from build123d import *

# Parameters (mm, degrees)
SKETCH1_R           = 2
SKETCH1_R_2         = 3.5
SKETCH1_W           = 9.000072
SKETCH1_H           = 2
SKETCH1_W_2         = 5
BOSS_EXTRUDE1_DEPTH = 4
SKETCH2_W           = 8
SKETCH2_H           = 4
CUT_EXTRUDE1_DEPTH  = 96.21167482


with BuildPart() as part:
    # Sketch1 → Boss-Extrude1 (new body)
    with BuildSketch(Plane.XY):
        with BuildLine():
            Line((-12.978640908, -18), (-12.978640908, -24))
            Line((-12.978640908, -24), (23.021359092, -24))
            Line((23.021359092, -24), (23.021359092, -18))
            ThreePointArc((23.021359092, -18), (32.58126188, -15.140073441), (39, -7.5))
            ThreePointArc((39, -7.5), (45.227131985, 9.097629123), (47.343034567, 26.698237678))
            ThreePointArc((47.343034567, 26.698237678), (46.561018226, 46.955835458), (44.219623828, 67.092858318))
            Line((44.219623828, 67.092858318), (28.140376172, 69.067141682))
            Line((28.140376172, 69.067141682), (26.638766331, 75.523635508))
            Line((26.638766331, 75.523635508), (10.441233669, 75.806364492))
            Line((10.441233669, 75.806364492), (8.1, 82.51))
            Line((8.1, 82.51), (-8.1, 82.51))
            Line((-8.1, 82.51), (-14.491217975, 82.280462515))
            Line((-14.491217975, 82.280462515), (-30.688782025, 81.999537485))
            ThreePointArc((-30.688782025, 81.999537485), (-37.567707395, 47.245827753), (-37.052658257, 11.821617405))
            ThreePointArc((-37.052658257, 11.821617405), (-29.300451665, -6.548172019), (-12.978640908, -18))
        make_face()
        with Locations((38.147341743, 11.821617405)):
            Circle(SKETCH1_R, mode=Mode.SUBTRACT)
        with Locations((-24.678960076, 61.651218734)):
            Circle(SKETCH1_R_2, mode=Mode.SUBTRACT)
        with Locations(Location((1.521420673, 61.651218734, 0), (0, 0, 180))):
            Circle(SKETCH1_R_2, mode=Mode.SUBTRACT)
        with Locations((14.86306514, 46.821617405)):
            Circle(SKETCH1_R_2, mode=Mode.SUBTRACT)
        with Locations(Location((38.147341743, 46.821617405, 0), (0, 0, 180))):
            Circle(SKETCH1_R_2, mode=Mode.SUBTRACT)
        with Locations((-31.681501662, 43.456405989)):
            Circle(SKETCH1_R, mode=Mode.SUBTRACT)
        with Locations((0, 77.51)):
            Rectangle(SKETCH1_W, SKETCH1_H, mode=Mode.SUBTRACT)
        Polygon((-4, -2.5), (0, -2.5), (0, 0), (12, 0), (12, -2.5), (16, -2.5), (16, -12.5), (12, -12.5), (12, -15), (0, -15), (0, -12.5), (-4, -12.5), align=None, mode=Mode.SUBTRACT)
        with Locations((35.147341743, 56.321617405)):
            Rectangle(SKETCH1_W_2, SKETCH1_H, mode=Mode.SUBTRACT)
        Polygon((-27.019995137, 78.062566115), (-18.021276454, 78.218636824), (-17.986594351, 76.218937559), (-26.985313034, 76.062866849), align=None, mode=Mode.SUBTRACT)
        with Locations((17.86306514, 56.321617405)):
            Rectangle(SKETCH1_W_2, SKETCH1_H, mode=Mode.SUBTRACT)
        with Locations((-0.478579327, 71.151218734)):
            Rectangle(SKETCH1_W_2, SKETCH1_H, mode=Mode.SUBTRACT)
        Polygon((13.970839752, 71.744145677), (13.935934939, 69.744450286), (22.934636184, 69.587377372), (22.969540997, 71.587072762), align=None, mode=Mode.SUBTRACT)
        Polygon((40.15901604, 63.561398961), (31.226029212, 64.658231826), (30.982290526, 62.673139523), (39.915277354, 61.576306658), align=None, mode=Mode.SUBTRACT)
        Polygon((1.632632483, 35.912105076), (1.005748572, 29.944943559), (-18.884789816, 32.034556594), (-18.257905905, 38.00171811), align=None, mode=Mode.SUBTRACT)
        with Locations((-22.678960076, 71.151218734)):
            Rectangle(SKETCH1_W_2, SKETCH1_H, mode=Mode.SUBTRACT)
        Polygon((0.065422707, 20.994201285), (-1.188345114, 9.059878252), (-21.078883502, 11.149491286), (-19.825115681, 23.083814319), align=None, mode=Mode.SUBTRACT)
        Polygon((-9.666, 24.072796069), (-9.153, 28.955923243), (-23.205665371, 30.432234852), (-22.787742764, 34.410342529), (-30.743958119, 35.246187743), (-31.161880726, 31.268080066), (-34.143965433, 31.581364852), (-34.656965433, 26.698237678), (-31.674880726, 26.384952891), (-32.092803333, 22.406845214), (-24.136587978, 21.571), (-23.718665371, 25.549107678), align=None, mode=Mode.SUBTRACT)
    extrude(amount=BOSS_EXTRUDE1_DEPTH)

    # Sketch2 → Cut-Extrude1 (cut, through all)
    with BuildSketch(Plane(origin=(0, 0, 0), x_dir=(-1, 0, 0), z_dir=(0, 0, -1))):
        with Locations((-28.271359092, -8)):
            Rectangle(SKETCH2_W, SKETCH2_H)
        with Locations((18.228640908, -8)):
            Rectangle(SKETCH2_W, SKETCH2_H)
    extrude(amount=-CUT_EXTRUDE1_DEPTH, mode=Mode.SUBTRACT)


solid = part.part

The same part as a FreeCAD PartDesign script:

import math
import FreeCAD as App
import Part
import Sketcher
Q = App.Units.Quantity


def add_polygon(sketch, points):
    """Adds a closed chain of lines whose ends are joined by coincident constraints."""
    first, n = sketch.GeometryCount, len(points)
    for a, b in zip(points, points[1:] + points[:1]):
        sketch.addGeometry(Part.LineSegment(App.Vector(*a, 0), App.Vector(*b, 0)), False)
    for i in range(n):
        sketch.addConstraint(Sketcher.Constraint("Coincident", first + i, 2, first + (i + 1) % n, 1))

doc = App.newDocument("Part")
body = doc.addObject("PartDesign::Body", "Body")

# Sketch on XY plane
sketch1 = body.newObject("Sketcher::SketchObject", "Sketch")
sketch1.AttachmentSupport = (doc.getObject("XY_Plane"), [""])
sketch1.MapMode = "FlatFace"
sketch1.addGeometry(Part.LineSegment(App.Vector(-13, -18, 0), App.Vector(-13, -24, 0)), False)  # 0
sketch1.addGeometry(Part.LineSegment(App.Vector(-13, -24, 0), App.Vector(23, -24, 0)), False)  # 1
sketch1.addGeometry(Part.LineSegment(App.Vector(23, -24, 0), App.Vector(23, -18, 0)), False)  # 2
sketch1.addGeometry(Part.ArcOfCircle(Part.Circle(App.Vector(23, -0.6, 0), App.Vector(0, 0, 1), 17.4), math.radians(-90), math.radians(-23)), False)  # 3
sketch1.addGeometry(Part.ArcOfCircle(Part.Circle(App.Vector(-26.9, 26.7, 0), App.Vector(0, 0, 1), 74.3), math.radians(-27), math.radians(0)), False)  # 4
sketch1.addGeometry(Part.ArcOfCircle(Part.Circle(App.Vector(-215.4, 26.7, 0), App.Vector(0, 0, 1), 262.8), math.radians(0), math.radians(8.84)), False)  # 5
sketch1.addGeometry(Part.LineSegment(App.Vector(44.2, 67.1, 0), App.Vector(28.1, 69.1, 0)), False)  # 6
sketch1.addGeometry(Part.LineSegment(App.Vector(28.1, 69.1, 0), App.Vector(26.6, 75.5, 0)), False)  # 7
sketch1.addGeometry(Part.LineSegment(App.Vector(26.6, 75.5, 0), App.Vector(10.4, 75.8, 0)), False)  # 8
sketch1.addGeometry(Part.LineSegment(App.Vector(10.4, 75.8, 0), App.Vector(8.1, 82.5, 0)), False)  # 9
sketch1.addGeometry(Part.LineSegment(App.Vector(8.1, 82.5, 0), App.Vector(-8.1, 82.5, 0)), False)  # 10
sketch1.addGeometry(Part.LineSegment(App.Vector(-8.1, 82.5, 0), App.Vector(-14.5, 82.3, 0)), False)  # 11
sketch1.addGeometry(Part.LineSegment(App.Vector(-14.5, 82.3, 0), App.Vector(-30.7, 82, 0)), False)  # 12
sketch1.addGeometry(Part.ArcOfCircle(Part.Circle(App.Vector(130.8, 32, 0), App.Vector(0, 0, 1), 169.1), math.radians(163), math.radians(187)), False)  # 13
sketch1.addGeometry(Part.ArcOfCircle(Part.Circle(App.Vector(-1.2, 16.1, 0), App.Vector(0, 0, 1), 36.1), math.radians(-173), math.radians(-109)), False)  # 14
add_polygon(sketch1, [(-9.2, 29), (-9.7, 24.1), (-23.7, 25.5), (-24.1, 21.6), (-32.1, 22.4), (-31.7, 26.4), (-34.7, 26.7), (-34.1, 31.6), (-31.2, 31.3), (-30.7, 35.2), (-22.8, 34.4), (-23.2, 30.4)])  # lines 15-26
add_polygon(sketch1, [(-19.8, 23.1), (0.1, 21), (-1.2, 9.1), (-21.1, 11.1)])  # lines 27-30
add_polygon(sketch1, [(-4, -12.5), (-4, -2.5), (0, -2.5), (0, 0), (12, 0), (12, -2.5), (16, -2.5), (16, -12.5), (12, -12.5), (12, -15), (0, -15), (0, -12.5)])  # lines 31-42
sketch1.addGeometry(Part.Circle(App.Vector(38.1, 11.8, 0), App.Vector(0, 0, 1), 2), False)  # 43
sketch1.addGeometry(Part.Circle(App.Vector(-31.7, 43.5, 0), App.Vector(0, 0, 1), 2), False)  # 44
add_polygon(sketch1, [(-18.3, 38), (1.6, 35.9), (1, 29.9), (-18.9, 32)])  # lines 45-48
sketch1.addGeometry(Part.Circle(App.Vector(-24.7, 61.7, 0), App.Vector(0, 0, 1), 3.5), False)  # 49
add_polygon(sketch1, [(-20.2, 70.2), (-25.2, 70.2), (-25.2, 72.2), (-20.2, 72.2)])  # lines 50-53
add_polygon(sketch1, [(-27, 76.1), (-27, 78.1), (-18, 78.2), (-18, 76.2)])  # lines 54-57
sketch1.addGeometry(Part.Circle(App.Vector(1.5, 61.7, 0), App.Vector(0, 0, 1), 3.5), False)  # 58
add_polygon(sketch1, [(2, 70.2), (-3, 70.2), (-3, 72.2), (2, 72.2)])  # lines 59-62
add_polygon(sketch1, [(4.5, 76.5), (-4.5, 76.5), (-4.5, 78.5), (4.5, 78.5)])  # lines 63-66
sketch1.addGeometry(Part.Circle(App.Vector(14.9, 46.8, 0), App.Vector(0, 0, 1), 3.5), False)  # 67
sketch1.addGeometry(Part.Circle(App.Vector(38.1, 46.8, 0), App.Vector(0, 0, 1), 3.5), False)  # 68
add_polygon(sketch1, [(20.4, 55.3), (15.4, 55.3), (15.4, 57.3), (20.4, 57.3)])  # lines 69-72
add_polygon(sketch1, [(13.9, 69.7), (14, 71.7), (23, 71.6), (22.9, 69.6)])  # lines 73-76
add_polygon(sketch1, [(37.6, 55.3), (32.6, 55.3), (32.6, 57.3), (37.6, 57.3)])  # lines 77-80
add_polygon(sketch1, [(31.2, 64.7), (40.2, 63.6), (39.9, 61.6), (31, 62.7)])  # lines 81-84
sketch1.addConstraint(Sketcher.Constraint("Coincident", 0, 2, 1, 1))
sketch1.addConstraint(Sketcher.Constraint("Coincident", 1, 2, 2, 1))
sketch1.addConstraint(Sketcher.Constraint("Coincident", 2, 2, 3, 1))
sketch1.addConstraint(Sketcher.Constraint("Coincident", 3, 2, 4, 1))
sketch1.addConstraint(Sketcher.Constraint("Tangent", 4, 2, 5, 1))
sketch1.addConstraint(Sketcher.Constraint("Coincident", 5, 2, 6, 1))
sketch1.addConstraint(Sketcher.Constraint("Coincident", 6, 2, 7, 1))
sketch1.addConstraint(Sketcher.Constraint("Coincident", 7, 2, 8, 1))
sketch1.addConstraint(Sketcher.Constraint("Coincident", 8, 2, 9, 1))
sketch1.addConstraint(Sketcher.Constraint("Coincident", 9, 2, 10, 1))
sketch1.addConstraint(Sketcher.Constraint("Coincident", 10, 2, 11, 1))
sketch1.addConstraint(Sketcher.Constraint("Coincident", 11, 2, 12, 1))
sketch1.addConstraint(Sketcher.Constraint("Coincident", 12, 2, 13, 1))
sketch1.addConstraint(Sketcher.Constraint("Tangent", 13, 2, 14, 1))
sketch1.addConstraint(Sketcher.Constraint("Coincident", 14, 2, 0, 1))
sketch1.addConstraint(Sketcher.Constraint("Vertical", 0))
sketch1.addConstraint(Sketcher.Constraint("Horizontal", 1))
sketch1.addConstraint(Sketcher.Constraint("Vertical", 2))
sketch1.addConstraint(Sketcher.Constraint("Horizontal", 10))
sketch1.addConstraint(Sketcher.Constraint("Vertical", 31))
sketch1.addConstraint(Sketcher.Constraint("Horizontal", 32))
sketch1.addConstraint(Sketcher.Constraint("Vertical", 33))
sketch1.addConstraint(Sketcher.Constraint("Horizontal", 34))
sketch1.addConstraint(Sketcher.Constraint("Vertical", 35))
sketch1.addConstraint(Sketcher.Constraint("Horizontal", 36))
sketch1.addConstraint(Sketcher.Constraint("Vertical", 37))
sketch1.addConstraint(Sketcher.Constraint("Horizontal", 38))
sketch1.addConstraint(Sketcher.Constraint("Vertical", 39))
sketch1.addConstraint(Sketcher.Constraint("Horizontal", 40))
sketch1.addConstraint(Sketcher.Constraint("Vertical", 41))
sketch1.addConstraint(Sketcher.Constraint("Horizontal", 42))
sketch1.addConstraint(Sketcher.Constraint("Horizontal", 50))
sketch1.addConstraint(Sketcher.Constraint("Vertical", 51))
sketch1.addConstraint(Sketcher.Constraint("Horizontal", 52))
sketch1.addConstraint(Sketcher.Constraint("Vertical", 53))
sketch1.addConstraint(Sketcher.Constraint("Horizontal", 59))
sketch1.addConstraint(Sketcher.Constraint("Vertical", 60))
sketch1.addConstraint(Sketcher.Constraint("Horizontal", 61))
sketch1.addConstraint(Sketcher.Constraint("Vertical", 62))
sketch1.addConstraint(Sketcher.Constraint("Horizontal", 63))
sketch1.addConstraint(Sketcher.Constraint("Vertical", 64))
sketch1.addConstraint(Sketcher.Constraint("Horizontal", 65))
sketch1.addConstraint(Sketcher.Constraint("Vertical", 66))
sketch1.addConstraint(Sketcher.Constraint("Horizontal", 69))
sketch1.addConstraint(Sketcher.Constraint("Vertical", 70))
sketch1.addConstraint(Sketcher.Constraint("Horizontal", 71))
sketch1.addConstraint(Sketcher.Constraint("Vertical", 72))
sketch1.addConstraint(Sketcher.Constraint("Horizontal", 77))
sketch1.addConstraint(Sketcher.Constraint("Vertical", 78))
sketch1.addConstraint(Sketcher.Constraint("Horizontal", 79))
sketch1.addConstraint(Sketcher.Constraint("Vertical", 80))
sketch1.addConstraint(Sketcher.Constraint("Coincident", 33, 2, -1, 1))
sketch1.addConstraint(Sketcher.Constraint("Equal", 43, 44))
sketch1.addConstraint(Sketcher.Constraint("Equal", 49, 58))
sketch1.addConstraint(Sketcher.Constraint("Equal", 58, 67))
sketch1.addConstraint(Sketcher.Constraint("Equal", 67, 68))
sketch1.addConstraint(Sketcher.Constraint("PointOnObject", 40, 2, -2))
sketch1.addConstraint(Sketcher.Constraint("Perpendicular", 15, 16))
sketch1.addConstraint(Sketcher.Constraint("Perpendicular", 16, 17))
sketch1.addConstraint(Sketcher.Constraint("Perpendicular", 17, 18))
sketch1.addConstraint(Sketcher.Constraint("Perpendicular", 18, 19))
sketch1.addConstraint(Sketcher.Constraint("Perpendicular", 19, 20))
sketch1.addConstraint(Sketcher.Constraint("Perpendicular", 20, 21))
sketch1.addConstraint(Sketcher.Constraint("Perpendicular", 21, 22))
sketch1.addConstraint(Sketcher.Constraint("Perpendicular", 22, 23))
sketch1.addConstraint(Sketcher.Constraint("Perpendicular", 23, 24))
sketch1.addConstraint(Sketcher.Constraint("Perpendicular", 24, 25))
sketch1.addConstraint(Sketcher.Constraint("Perpendicular", 25, 26))
sketch1.addConstraint(Sketcher.Constraint("Parallel", 26, 27))
sketch1.addConstraint(Sketcher.Constraint("Perpendicular", 27, 28))
sketch1.addConstraint(Sketcher.Constraint("Perpendicular", 28, 29))
sketch1.addConstraint(Sketcher.Constraint("Perpendicular", 29, 30))
sketch1.addConstraint(Sketcher.Constraint("Perpendicular", 30, 45))
sketch1.addConstraint(Sketcher.Constraint("Perpendicular", 45, 46))
sketch1.addConstraint(Sketcher.Constraint("Perpendicular", 46, 47))
sketch1.addConstraint(Sketcher.Constraint("Perpendicular", 47, 48))
sketch1.addConstraint(Sketcher.Constraint("Perpendicular", 12, 54))
sketch1.addConstraint(Sketcher.Constraint("Perpendicular", 54, 55))
sketch1.addConstraint(Sketcher.Constraint("Perpendicular", 55, 56))
sketch1.addConstraint(Sketcher.Constraint("Perpendicular", 56, 57))
sketch1.addConstraint(Sketcher.Constraint("Perpendicular", 8, 73))
sketch1.addConstraint(Sketcher.Constraint("Perpendicular", 73, 74))
sketch1.addConstraint(Sketcher.Constraint("Perpendicular", 74, 75))
sketch1.addConstraint(Sketcher.Constraint("Perpendicular", 75, 76))
sketch1.addConstraint(Sketcher.Constraint("Parallel", 6, 81))
sketch1.addConstraint(Sketcher.Constraint("Perpendicular", 81, 82))
sketch1.addConstraint(Sketcher.Constraint("Perpendicular", 82, 83))
sketch1.addConstraint(Sketcher.Constraint("Perpendicular", 83, 84))
sketch1.addConstraint(Sketcher.Constraint("Horizontal", 4, 3, 5, 3))
sketch1.addConstraint(Sketcher.Constraint("Horizontal", 49, 3, 58, 3))
sketch1.addConstraint(Sketcher.Constraint("Horizontal", 67, 3, 68, 3))
sketch1.addConstraint(Sketcher.Constraint("Horizontal", 43, 3, 13, 2))
sketch1.addConstraint(Sketcher.Constraint("Horizontal", 2, 2, 14, 2))
sketch1.addConstraint(Sketcher.Constraint("Horizontal", 4, 2, 20, 2))
sketch1.addConstraint(Sketcher.Constraint("Horizontal", 32, 2, 35, 2))
sketch1.addConstraint(Sketcher.Constraint("Horizontal", 38, 2, 41, 2))
sketch1.addConstraint(Sketcher.Constraint("Horizontal", 53, 2, 59, 2))
sketch1.addConstraint(Sketcher.Constraint("Horizontal", 52, 2, 60, 2))
sketch1.addConstraint(Sketcher.Constraint("Horizontal", 72, 2, 77, 2))
sketch1.addConstraint(Sketcher.Constraint("Horizontal", 71, 2, 78, 2))
sketch1.addConstraint(Sketcher.Constraint("Vertical", 43, 3, 68, 3))
sketch1.addConstraint(Sketcher.Constraint("Vertical", 3, 3, 1, 2))
sketch1.addConstraint(Sketcher.Constraint("Vertical", 35, 2, 38, 2))
sketch1.addConstraint(Sketcher.Constraint("Equal", 32, 36))
sketch1.addConstraint(Sketcher.Constraint("Equal", 52, 59))
sketch1.addConstraint(Sketcher.Constraint("Equal", 61, 69))
sketch1.addConstraint(Sketcher.Constraint("Equal", 71, 77))
sketch1.addConstraint(Sketcher.Constraint("Equal", 35, 39))
sketch1.addConstraint(Sketcher.Constraint("Equal", 62, 64))
sketch1.addConstraint(Sketcher.Constraint("Equal", 66, 70))
sketch1.addConstraint(Sketcher.Constraint("Equal", 6, 8))
sketch1.addConstraint(Sketcher.Constraint("Equal", 8, 12))
sketch1.addConstraint(Sketcher.Constraint("Equal", 17, 19))
sketch1.addConstraint(Sketcher.Constraint("Equal", 15, 21))
sketch1.addConstraint(Sketcher.Constraint("Equal", 20, 22))
sketch1.addConstraint(Sketcher.Constraint("Equal", 19, 23))
sketch1.addConstraint(Sketcher.Constraint("Equal", 18, 24))
sketch1.addConstraint(Sketcher.Constraint("Equal", 29, 45))
sketch1.addConstraint(Sketcher.Constraint("Equal", 56, 73))
sketch1.addConstraint(Sketcher.Constraint("Equal", 57, 74))
sketch1.addConstraint(Sketcher.Constraint("Equal", 76, 81))
sketch1.addConstraint(Sketcher.Constraint("Equal", 75, 82))
sketch1.addConstraint(Sketcher.Constraint("Diameter", 43, Q("4 mm")))
sketch1.addConstraint(Sketcher.Constraint("Diameter", 49, Q("7 mm")))
sketch1.addConstraint(Sketcher.Constraint("DistanceX", 1, 1, 1, 2, Q("36 mm")))
sketch1.addConstraint(Sketcher.Constraint("DistanceX", 32, 1, 32, 2, Q("4 mm")))
sketch1.addConstraint(Sketcher.Constraint("DistanceX", 34, 1, 34, 2, Q("12 mm")))
sketch1.addConstraint(Sketcher.Constraint("DistanceX", 50, 2, 50, 1, Q("5 mm")))
sketch1.addConstraint(Sketcher.Constraint("DistanceY", 0, 2, 0, 1, Q("6 mm")))
sketch1.addConstraint(Sketcher.Constraint("DistanceY", 31, 1, 31, 2, Q("10 mm")))
sketch1.addConstraint(Sketcher.Constraint("DistanceY", 51, 1, 51, 2, Q("2 mm")))
sketch1.addConstraint(Sketcher.Constraint("Angle", 6, Q("173 deg")))
sketch1.addConstraint(Sketcher.Constraint("Angle", 8, Q("179 deg")))
sketch1.addConstraint(Sketcher.Constraint("Distance", 17, Q("4 mm")))
sketch1.addConstraint(Sketcher.Constraint("Distance", 18, Q("8 mm")))
sketch1.addConstraint(Sketcher.Constraint("Distance", 27, Q("20 mm")))
sketch1.addConstraint(Sketcher.Constraint("Distance", 28, Q("12 mm")))
sketch1.addConstraint(Sketcher.Constraint("Distance", 46, Q("6 mm")))
sketch1.addConstraint(Sketcher.Constraint("Distance", 54, Q("2 mm")))
sketch1.addConstraint(Sketcher.Constraint("DistanceX", 10, 2, 10, 1, Q("16.2 mm")))
sketch1.addConstraint(Sketcher.Constraint("DistanceY", 33, 1, 33, 2, Q("2.5 mm")))
sketch1.addConstraint(Sketcher.Constraint("DistanceY", 0, 2, -1, 1, Q("24 mm")))
sketch1.addConstraint(Sketcher.Constraint("DistanceX", -1, 1, 3, 2, Q("39 mm")))
sketch1.addConstraint(Sketcher.Constraint("Distance", 6, Q("16.2 mm")))
sketch1.addConstraint(Sketcher.Constraint("DistanceY", 3, 2, -1, 1, Q("7.5 mm")))
sketch1.addConstraint(Sketcher.Constraint("DistanceX", -1, 1, 9, 2, Q("8.1 mm")))
sketch1.addConstraint(Sketcher.Constraint("Distance", 15, Q("4.91 mm")))
sketch1.addConstraint(Sketcher.Constraint("Distance", 16, Q("14.13 mm")))
sketch1.addConstraint(Sketcher.Constraint("DistanceY", -1, 1, 9, 2, Q("82.51 mm")))
sketch1.addConstraint(Sketcher.Constraint("DistanceY", -1, 1, 63, 2, Q("76.51 mm")))
sketch1.addConstraint(Sketcher.Constraint("Radius", 3, Q("17.407951 mm")))
sketch1.addConstraint(Sketcher.Constraint("Radius", 4, Q("74.26109 mm")))
sketch1.addConstraint(Sketcher.Constraint("Radius", 13, Q("169.05805 mm")))
sketch1.addConstraint(Sketcher.Constraint("DistanceX", 15, 2, -1, 1, Q("9.666 mm")))
sketch1.addConstraint(Sketcher.Constraint("DistanceY", -1, 1, 17, 2, Q("21.571 mm")))
sketch1.addConstraint(Sketcher.Constraint("DistanceX", 26, 2, -1, 1, Q("9.153 mm")))
sketch1.addConstraint(Sketcher.Constraint("Radius", 5, Q("262.770607 mm")))
sketch1.addConstraint(Sketcher.Constraint("Radius", 14, Q("36.096364 mm")))
sketch1.addConstraint(Sketcher.Constraint("DistanceX", -1, 1, 13, 3, Q("130.799499 mm")))
sketch1.addConstraint(Sketcher.Constraint("DistanceX", 44, 3, -1, 1, Q("31.681502 mm")))
sketch1.addConstraint(Sketcher.Constraint("DistanceY", -1, 1, 27, 2, Q("20.994201 mm")))
sketch1.addConstraint(Sketcher.Constraint("DistanceY", -1, 1, 81, 2, Q("63.561399 mm")))
sketch1.addConstraint(Sketcher.Constraint("Distance", 7, Q("6.628812 mm")))
sketch1.addConstraint(Sketcher.Constraint("Distance", 9, Q("7.100712 mm")))
sketch1.addConstraint(Sketcher.Constraint("Distance", 11, Q("6.395339 mm")))
sketch1.addConstraint(Sketcher.Constraint("Distance", 55, Q("9.000072 mm")))
sketch1.addConstraint(Sketcher.Constraint("DistanceX", 63, 2, 63, 1, Q("9.000072 mm")))
sketch1.addConstraint(Sketcher.Constraint("DistanceX", 14, 3, -1, 1, Q("1.21377 mm")))
sketch1.addConstraint(Sketcher.Constraint("DistanceX", -1, 1, 43, 3, Q("38.147342 mm")))
sketch1.addConstraint(Sketcher.Constraint("DistanceX", 49, 3, -1, 1, Q("24.67896 mm")))
sketch1.addConstraint(Sketcher.Constraint("DistanceY", -1, 1, 49, 3, Q("61.651219 mm")))
sketch1.addConstraint(Sketcher.Constraint("DistanceX", -1, 1, 58, 3, Q("1.521421 mm")))
sketch1.addConstraint(Sketcher.Constraint("DistanceY", -1, 1, 6, 2, Q("69.067142 mm")))
sketch1.addConstraint(Sketcher.Constraint("DistanceX", -1, 1, 46, 2, Q("1.005749 mm")))
sketch1.addConstraint(Sketcher.Constraint("DistanceY", -1, 1, 48, 2, Q("38.001718 mm")))
sketch1.addConstraint(Sketcher.Constraint("DistanceX", 50, 2, -1, 1, Q("25.17896 mm")))
sketch1.addConstraint(Sketcher.Constraint("DistanceY", -1, 1, 50, 2, Q("70.151219 mm")))
sketch1.addConstraint(Sketcher.Constraint("DistanceX", 59, 2, -1, 1, Q("2.978579 mm")))
sketch1.addConstraint(Sketcher.Constraint("DistanceX", -1, 1, 73, 2, Q("13.97084 mm")))
sketch1.addConstraint(Sketcher.Constraint("DistanceY", -1, 1, 76, 2, Q("69.74445 mm")))
sketch1.addConstraint(Sketcher.Constraint("DistanceX", -1, 1, 77, 2, Q("32.647342 mm")))
sketch1.addConstraint(Sketcher.Constraint("DistanceX", -1, 1, 83, 2, Q("30.982291 mm")))
sketch1.addConstraint(Sketcher.Constraint("Distance", 20, Q("2.998496 mm")))
sketch1.addConstraint(Sketcher.Constraint("DistanceY", -1, 1, 44, 3, Q("43.456406 mm")))
sketch1.addConstraint(Sketcher.Constraint("DistanceX", -1, 1, 67, 3, Q("14.863065 mm")))
sketch1.addConstraint(Sketcher.Constraint("DistanceY", -1, 1, 67, 3, Q("46.821617 mm")))
sketch1.addConstraint(Sketcher.Constraint("DistanceX", 11, 2, -1, 1, Q("14.491218 mm")))
sketch1.addConstraint(Sketcher.Constraint("DistanceX", -1, 1, 27, 2, Q("0.065423 mm")))
sketch1.addConstraint(Sketcher.Constraint("DistanceX", 54, 2, -1, 1, Q("27.019995 mm")))
sketch1.addConstraint(Sketcher.Constraint("DistanceY", -1, 1, 54, 2, Q("78.062566 mm")))
sketch1.addConstraint(Sketcher.Constraint("DistanceX", 63, 2, -1, 1, Q("4.500036 mm")))
sketch1.addConstraint(Sketcher.Constraint("DistanceX", -1, 1, 69, 2, Q("15.363065 mm")))
sketch1.addConstraint(Sketcher.Constraint("DistanceY", -1, 1, 69, 2, Q("55.321617 mm")))
pad1 = body.newObject("PartDesign::Pad", "Pad")
pad1.Profile = sketch1
pad1.Length = 4

# Sketch on XY plane
sketch2 = body.newObject("Sketcher::SketchObject", "Sketch001")
sketch2.AttachmentSupport = (doc.getObject("XY_Plane"), [""])
sketch2.MapMode = "FlatFace"
add_polygon(sketch2, [(32.3, -6), (32.3, -10), (24.3, -10), (24.3, -6)])  # lines 0-3
add_polygon(sketch2, [(-14.2, -6), (-14.2, -10), (-22.2, -10), (-22.2, -6)])  # lines 4-7
sketch2.addConstraint(Sketcher.Constraint("Vertical", 0))
sketch2.addConstraint(Sketcher.Constraint("Horizontal", 1))
sketch2.addConstraint(Sketcher.Constraint("Vertical", 2))
sketch2.addConstraint(Sketcher.Constraint("Horizontal", 3))
sketch2.addConstraint(Sketcher.Constraint("Vertical", 4))
sketch2.addConstraint(Sketcher.Constraint("Horizontal", 5))
sketch2.addConstraint(Sketcher.Constraint("Vertical", 6))
sketch2.addConstraint(Sketcher.Constraint("Horizontal", 7))
sketch2.addConstraint(Sketcher.Constraint("Horizontal", 1, 2, 4, 2))
sketch2.addConstraint(Sketcher.Constraint("Horizontal", 3, 2, 6, 2))
sketch2.addConstraint(Sketcher.Constraint("Equal", 3, 5))
sketch2.addConstraint(Sketcher.Constraint("DistanceX", 1, 2, 1, 1, Q("8 mm")))
sketch2.addConstraint(Sketcher.Constraint("DistanceY", 0, 2, 0, 1, Q("4 mm")))
sketch2.addConstraint(Sketcher.Constraint("DistanceY", 0, 2, -1, 1, Q("10 mm")))
sketch2.addConstraint(Sketcher.Constraint("DistanceX", 4, 2, 1, 2, Q("38.5 mm")))
sketch2.addConstraint(Sketcher.Constraint("DistanceX", -1, 1, 0, 2, Q("32.271359 mm")))
pocket1 = body.newObject("PartDesign::Pocket", "Pocket")
pocket1.Profile = sketch2
pocket1.Type = "ThroughAll"
pocket1.Reversed = True

doc.recompute()
